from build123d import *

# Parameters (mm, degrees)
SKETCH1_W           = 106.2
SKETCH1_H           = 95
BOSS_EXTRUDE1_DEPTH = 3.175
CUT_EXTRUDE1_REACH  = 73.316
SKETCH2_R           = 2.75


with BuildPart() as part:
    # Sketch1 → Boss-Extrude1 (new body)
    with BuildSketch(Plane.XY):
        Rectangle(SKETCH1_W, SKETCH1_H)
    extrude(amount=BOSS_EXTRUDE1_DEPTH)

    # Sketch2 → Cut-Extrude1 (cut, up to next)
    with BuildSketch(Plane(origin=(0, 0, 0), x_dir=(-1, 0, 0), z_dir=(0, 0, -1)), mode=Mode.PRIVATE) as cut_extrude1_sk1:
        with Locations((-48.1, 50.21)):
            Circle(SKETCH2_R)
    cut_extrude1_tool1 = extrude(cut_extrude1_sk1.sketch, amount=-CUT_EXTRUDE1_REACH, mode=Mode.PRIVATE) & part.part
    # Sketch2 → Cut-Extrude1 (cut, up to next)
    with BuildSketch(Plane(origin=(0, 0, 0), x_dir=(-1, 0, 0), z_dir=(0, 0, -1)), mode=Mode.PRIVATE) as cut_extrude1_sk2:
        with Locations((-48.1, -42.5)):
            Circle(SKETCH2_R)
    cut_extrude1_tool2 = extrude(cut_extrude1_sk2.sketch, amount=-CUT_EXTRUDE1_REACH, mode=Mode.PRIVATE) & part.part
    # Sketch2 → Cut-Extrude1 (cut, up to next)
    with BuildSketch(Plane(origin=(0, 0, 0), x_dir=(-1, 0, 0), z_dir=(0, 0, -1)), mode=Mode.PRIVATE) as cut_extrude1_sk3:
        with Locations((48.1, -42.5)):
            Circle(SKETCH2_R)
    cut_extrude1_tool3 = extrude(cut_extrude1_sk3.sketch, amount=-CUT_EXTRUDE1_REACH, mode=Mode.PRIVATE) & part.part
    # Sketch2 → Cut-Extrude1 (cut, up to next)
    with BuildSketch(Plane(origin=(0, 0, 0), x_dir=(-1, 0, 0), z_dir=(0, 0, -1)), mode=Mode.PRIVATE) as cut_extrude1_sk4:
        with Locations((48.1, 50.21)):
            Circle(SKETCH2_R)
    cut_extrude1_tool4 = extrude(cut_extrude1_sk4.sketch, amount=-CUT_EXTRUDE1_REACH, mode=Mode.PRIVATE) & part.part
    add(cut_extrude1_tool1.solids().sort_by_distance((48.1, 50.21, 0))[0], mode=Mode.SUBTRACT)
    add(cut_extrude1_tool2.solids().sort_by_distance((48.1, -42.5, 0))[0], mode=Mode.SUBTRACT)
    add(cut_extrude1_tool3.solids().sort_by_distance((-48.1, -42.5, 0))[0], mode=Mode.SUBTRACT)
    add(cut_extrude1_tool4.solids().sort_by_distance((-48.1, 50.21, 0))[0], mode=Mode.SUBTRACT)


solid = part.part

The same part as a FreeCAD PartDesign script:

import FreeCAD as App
import Part
import Sketcher
from FreeCAD import Vector
Q = App.Units.Quantity


def add_polygon(sketch, points):
    """Adds a closed chain of lines whose ends are joined by coincident constraints."""
    first, n = sketch.GeometryCount, len(points)
    for a, b in zip(points, points[1:] + points[:1]):
        sketch.addGeometry(Part.LineSegment(App.Vector(*a, 0), App.Vector(*b, 0)), False)
    for i in range(n):
        sketch.addConstraint(Sketcher.Constraint("Coincident", first + i, 2, first + (i + 1) % n, 1))

doc = App.newDocument("Part")
body = doc.addObject("PartDesign::Body", "Body")

sketch1 = body.newObject("Sketcher::SketchObject", "Sketch")
sketch1.AttachmentSupport = (doc.getObject("XY_Plane"), [""])
sketch1.MapMode = "FlatFace"
add_polygon(sketch1, [(-53.1, 47.5), (-53.1, -47.5), (53.1, -47.5), (53.1, 47.5)])
sketch1.addConstraint([
    Sketcher.Constraint("Vertical", 0),
    Sketcher.Constraint("Horizontal", 1),
    Sketcher.Constraint("Vertical", 2),
    Sketcher.Constraint("Horizontal", 3),
    Sketcher.Constraint("Symmetric", 0, 2, 2, 2, -1, 1),
    Sketcher.Constraint("DistanceY", 0, 2, 0, 1, Q("95 mm")),
    Sketcher.Constraint("DistanceX", 1, 1, 1, 2, Q("106.2 mm")),
])
pad1 = body.newObject("PartDesign::Pad", "Pad")
pad1.Profile = sketch1
pad1.Length = 3.175

sketch2 = body.newObject("Sketcher::SketchObject", "Sketch001")
sketch2.AttachmentSupport = (doc.getObject("XY_Plane"), [""])
sketch2.MapMode = "FlatFace"
sketch2.addGeometry(Part.Circle(Vector(48.1, 50.21, 0), Vector(0, 0, 1), 2.75), False)
sketch2.addConstraint([
    Sketcher.Constraint("Diameter", 0, Q("5.5 mm")),
    Sketcher.Constraint("DistanceX", -1, 1, 0, 3, Q("48.1 mm")),
    Sketcher.Constraint("DistanceY", -1, 1, 0, 3, Q("50.21 mm")),
])
pocket1 = body.newObject("PartDesign::Pocket", "Pocket")
pocket1.Profile = sketch2
pocket1.Length = 3.175
pocket1.Reversed = True

sketch3 = body.newObject("Sketcher::SketchObject", "Sketch002")
sketch3.AttachmentSupport = (doc.getObject("XY_Plane"), [""])
sketch3.MapMode = "FlatFace"
sketch3.addGeometry(Part.Circle(Vector(48.1, -42.5, 0), Vector(0, 0, 1), 2.75), False)
sketch3.addConstraint([
    Sketcher.Constraint("Diameter", 0, Q("5.5 mm")),
    Sketcher.Constraint("DistanceX", -1, 1, 0, 3, Q("48.1 mm")),
    Sketcher.Constraint("DistanceY", 0, 3, -1, 1, Q("42.5 mm")),
])
pocket2 = body.newObject("PartDesign::Pocket", "Pocket001")
pocket2.Profile = sketch3
pocket2.Type = "UpToFirst"
pocket2.Reversed = True

sketch4 = body.newObject("Sketcher::SketchObject", "Sketch003")
sketch4.AttachmentSupport = (doc.getObject("XY_Plane"), [""])
sketch4.MapMode = "FlatFace"
sketch4.addGeometry(Part.Circle(Vector(-48.1, -42.5, 0), Vector(0, 0, 1), 2.75), False)
sketch4.addConstraint([
    Sketcher.Constraint("Diameter", 0, Q("5.5 mm")),
    Sketcher.Constraint("DistanceX", 0, 3, -1, 1, Q("48.1 mm")),
    Sketcher.Constraint("DistanceY", 0, 3, -1, 1, Q("42.5 mm")),
])
pocket3 = body.newObject("PartDesign::Pocket", "Pocket002")
pocket3.Profile = sketch4
pocket3.Type = "UpToFirst"
pocket3.Reversed = True

sketch5 = body.newObject("Sketcher::SketchObject", "Sketch004")
sketch5.AttachmentSupport = (doc.getObject("XY_Plane"), [""])
sketch5.MapMode = "FlatFace"
sketch5.addGeometry(Part.Circle(Vector(-48.1, 50.21, 0), Vector(0, 0, 1), 2.75), False)
sketch5.addConstraint([
    Sketcher.Constraint("Diameter", 0, Q("5.5 mm")),
    Sketcher.Constraint("DistanceX", 0, 3, -1, 1, Q("48.1 mm")),
    Sketcher.Constraint("DistanceY", -1, 1, 0, 3, Q("50.21 mm")),
])
pocket4 = body.newObject("PartDesign::Pocket", "Pocket003")
pocket4.Profile = sketch5
pocket4.Length = 3.175
pocket4.Reversed = True

doc.recompute()
